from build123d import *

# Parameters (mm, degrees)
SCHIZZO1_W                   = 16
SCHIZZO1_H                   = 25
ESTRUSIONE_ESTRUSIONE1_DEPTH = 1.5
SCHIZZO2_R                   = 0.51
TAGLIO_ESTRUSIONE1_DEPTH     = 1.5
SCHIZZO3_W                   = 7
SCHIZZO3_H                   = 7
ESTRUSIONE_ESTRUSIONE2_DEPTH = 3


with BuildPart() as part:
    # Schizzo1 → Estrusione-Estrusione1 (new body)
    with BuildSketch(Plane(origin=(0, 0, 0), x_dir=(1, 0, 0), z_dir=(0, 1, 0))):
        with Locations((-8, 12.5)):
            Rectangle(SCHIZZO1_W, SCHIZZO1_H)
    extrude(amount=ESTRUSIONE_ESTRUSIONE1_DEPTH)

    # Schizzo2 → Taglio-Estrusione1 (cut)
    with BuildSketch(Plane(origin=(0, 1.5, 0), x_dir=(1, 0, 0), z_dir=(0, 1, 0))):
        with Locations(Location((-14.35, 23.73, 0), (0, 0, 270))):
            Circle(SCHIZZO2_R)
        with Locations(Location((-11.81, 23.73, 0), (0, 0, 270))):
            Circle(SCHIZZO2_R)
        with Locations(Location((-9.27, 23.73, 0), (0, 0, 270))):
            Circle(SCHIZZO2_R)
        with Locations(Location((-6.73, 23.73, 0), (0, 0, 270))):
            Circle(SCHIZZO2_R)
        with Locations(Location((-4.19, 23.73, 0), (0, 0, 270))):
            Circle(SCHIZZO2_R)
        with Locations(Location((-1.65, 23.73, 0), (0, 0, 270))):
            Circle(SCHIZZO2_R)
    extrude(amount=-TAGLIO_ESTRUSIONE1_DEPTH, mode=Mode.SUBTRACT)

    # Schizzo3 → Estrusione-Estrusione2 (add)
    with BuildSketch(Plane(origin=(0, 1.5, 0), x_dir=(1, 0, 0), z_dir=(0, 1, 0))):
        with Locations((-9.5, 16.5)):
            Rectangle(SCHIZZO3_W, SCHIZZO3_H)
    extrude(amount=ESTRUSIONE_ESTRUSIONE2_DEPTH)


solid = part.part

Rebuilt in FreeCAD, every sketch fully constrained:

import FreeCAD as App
import Part
import Sketcher
Q = App.Units.Quantity

doc = App.newDocument("Part")
params = doc.addObject("Spreadsheet::Sheet", "Params")
for row, (alias, value) in enumerate([
    ("sketch1_width", "16 mm"),
    ("sketch1_height", "25 mm"),
    ("pad1_length", "1.5 mm"),
    ("sketch2_diameter", "1.02 mm"),
    ("pocket1_length", "1.5 mm"),
    ("sketch3_width", "7 mm"),
    ("pad2_length", "3 mm"),
], start=1):
    params.set(f"A{row}", alias)
    params.set(f"B{row}", "=" + value)
    params.setAlias(f"B{row}", alias)

body = doc.addObject("PartDesign::Body", "Body")

# Sketch on XZ plane
sketch1 = body.newObject("Sketcher::SketchObject", "Sketch")
sketch1.AttachmentSupport = (doc.getObject("XZ_Plane"), [""])
sketch1.MapMode = "FlatFace"
sketch1.addGeometry(Part.LineSegment(App.Vector(-16, -25, 0), App.Vector(-16, 0, 0)), False)
sketch1.addGeometry(Part.LineSegment(App.Vector(-16, 0, 0), App.Vector(0, 0, 0)), False)
sketch1.addGeometry(Part.LineSegment(App.Vector(0, 0, 0), App.Vector(0, -25, 0)), False)
sketch1.addGeometry(Part.LineSegment(App.Vector(0, -25, 0), App.Vector(-16, -25, 0)), False)
sketch1.addConstraint(Sketcher.Constraint("Coincident", 0, 2, 1, 1))
sketch1.addConstraint(Sketcher.Constraint("Coincident", 1, 2, 2, 1))
sketch1.addConstraint(Sketcher.Constraint("Coincident", 2, 2, 3, 1))
sketch1.addConstraint(Sketcher.Constraint("Coincident", 3, 2, 0, 1))
sketch1.addConstraint(Sketcher.Constraint("Vertical", 0))
sketch1.addConstraint(Sketcher.Constraint("Horizontal", 1))
sketch1.addConstraint(Sketcher.Constraint("Vertical", 2))
sketch1.addConstraint(Sketcher.Constraint("Horizontal", 3))
sketch1.addConstraint(Sketcher.Constraint("Coincident", 1, 2, -1, 1))
sketch1.addConstraint(Sketcher.Constraint("DistanceX", 1, 1, 1, 2, Q("16 mm")))
sketch1.addConstraint(Sketcher.Constraint("DistanceY", 0, 1, 0, 2, Q("25 mm")))
sketch1.setExpression("Constraints[9]", "Params.sketch1_width")
sketch1.setExpression("Constraints[10]", "Params.sketch1_height")
pad1 = body.newObject("PartDesign::Pad", "Pad")
pad1.Profile = sketch1
pad1.setExpression("Length", "Params.pad1_length")
pad1.Reversed = True

# Sketch on XZ plane
sketch2 = body.newObject("Sketcher::SketchObject", "Sketch001")
sketch2.AttachmentSupport = (doc.getObject("XZ_Plane"), [""])
sketch2.MapMode = "FlatFace"
sketch2.AttachmentOffset = App.Placement(App.Vector(0, 0, -1.5), App.Rotation())
sketch2.addGeometry(Part.Circle(App.Vector(-14.3, -23.7, 0), App.Vector(0, 0, 1), 0.5), False)
sketch2.addGeometry(Part.Circle(App.Vector(-11.8, -23.7, 0), App.Vector(0, 0, 1), 0.5), False)
sketch2.addGeometry(Part.Circle(App.Vector(-9.3, -23.7, 0), App.Vector(0, 0, 1), 0.5), False)
sketch2.addGeometry(Part.Circle(App.Vector(-6.7, -23.7, 0), App.Vector(0, 0, 1), 0.5), False)
sketch2.addGeometry(Part.Circle(App.Vector(-4.2, -23.7, 0), App.Vector(0, 0, 1), 0.5), False)
sketch2.addGeometry(Part.Circle(App.Vector(-1.6, -23.7, 0), App.Vector(0, 0, 1), 0.5), False)
sketch2.addConstraint(Sketcher.Constraint("Equal", 0, 1))
sketch2.addConstraint(Sketcher.Constraint("Equal", 1, 2))
sketch2.addConstraint(Sketcher.Constraint("Equal", 2, 3))
sketch2.addConstraint(Sketcher.Constraint("Equal", 3, 4))
sketch2.addConstraint(Sketcher.Constraint("Equal", 4, 5))
sketch2.addConstraint(Sketcher.Constraint("Horizontal", 0, 3, 1, 3))
sketch2.addConstraint(Sketcher.Constraint("Horizontal", 1, 3, 2, 3))
sketch2.addConstraint(Sketcher.Constraint("Horizontal", 2, 3, 3, 3))
sketch2.addConstraint(Sketcher.Constraint("Horizontal", 3, 3, 4, 3))
sketch2.addConstraint(Sketcher.Constraint("Horizontal", 4, 3, 5, 3))
sketch2.addConstraint(Sketcher.Constraint("Diameter", 0, Q("1.02 mm")))
sketch2.addConstraint(Sketcher.Constraint("DistanceX", 0, 3, 5, 3, Q("12.7 mm")))
sketch2.addConstraint(Sketcher.Constraint("DistanceX", 0, 3, -1, 1, Q("14.35 mm")))
sketch2.addConstraint(Sketcher.Constraint("DistanceY", 0, 3, -1, 1, Q("23.73 mm")))
sketch2.addConstraint(Sketcher.Constraint("DistanceX", 1, 3, -1, 1, Q("11.81 mm")))
sketch2.addConstraint(Sketcher.Constraint("DistanceX", 2, 3, -1, 1, Q("9.27 mm")))
sketch2.addConstraint(Sketcher.Constraint("DistanceX", 3, 3, -1, 1, Q("6.73 mm")))
sketch2.addConstraint(Sketcher.Constraint("DistanceX", 4, 3, -1, 1, Q("4.19 mm")))
sketch2.setExpression("Constraints[10]", "Params.sketch2_diameter")
pocket1 = body.newObject("PartDesign::Pocket", "Pocket")
pocket1.Profile = sketch2
pocket1.setExpression("Length", "Params.pocket1_length")
pocket1.Reversed = True

# Sketch on XZ plane
sketch3 = body.newObject("Sketcher::SketchObject", "Sketch002")
sketch3.AttachmentSupport = (doc.getObject("XZ_Plane"), [""])
sketch3.MapMode = "FlatFace"
sketch3.AttachmentOffset = App.Placement(App.Vector(0, 0, -1.5), App.Rotation())
sketch3.addGeometry(Part.LineSegment(App.Vector(-13, -20, 0), App.Vector(-13, -13, 0)), False)
sketch3.addGeometry(Part.LineSegment(App.Vector(-13, -13, 0), App.Vector(-6, -13, 0)), False)
sketch3.addGeometry(Part.LineSegment(App.Vector(-6, -13, 0), App.Vector(-6, -20, 0)), False)
sketch3.addGeometry(Part.LineSegment(App.Vector(-6, -20, 0), App.Vector(-13, -20, 0)), False)
sketch3.addConstraint(Sketcher.Constraint("Coincident", 0, 2, 1, 1))
sketch3.addConstraint(Sketcher.Constraint("Coincident", 1, 2, 2, 1))
sketch3.addConstraint(Sketcher.Constraint("Coincident", 2, 2, 3, 1))
sketch3.addConstraint(Sketcher.Constraint("Coincident", 3, 2, 0, 1))
sketch3.addConstraint(Sketcher.Constraint("Vertical", 0))
sketch3.addConstraint(Sketcher.Constraint("Horizontal", 1))
sketch3.addConstraint(Sketcher.Constraint("Vertical", 2))
sketch3.addConstraint(Sketcher.Constraint("Horizontal", 3))
sketch3.addConstraint(Sketcher.Constraint("Equal", 3, 0))
sketch3.addConstraint(Sketcher.Constraint("DistanceX", 1, 1, 1, 2, Q("7 mm")))
sketch3.addConstraint(Sketcher.Constraint("DistanceX", 0, 2, -1, 1, Q("13 mm")))
sketch3.addConstraint(Sketcher.Constraint("DistanceY", 0, 2, -1, 1, Q("13 mm")))
sketch3.setExpression("Constraints[9]", "Params.sketch3_width")
pad2 = body.newObject("PartDesign::Pad", "Pad001")
pad2.Profile = sketch3
pad2.setExpression("Length", "Params.pad2_length")
pad2.Reversed = True

doc.recompute()
